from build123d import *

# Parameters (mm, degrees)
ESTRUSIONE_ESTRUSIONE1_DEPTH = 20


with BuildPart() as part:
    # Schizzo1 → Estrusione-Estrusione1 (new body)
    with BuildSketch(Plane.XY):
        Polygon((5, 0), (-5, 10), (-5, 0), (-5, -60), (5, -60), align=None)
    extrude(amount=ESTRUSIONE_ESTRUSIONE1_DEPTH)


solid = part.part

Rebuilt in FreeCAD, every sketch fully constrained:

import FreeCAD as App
import Part
import Sketcher
Q = App.Units.Quantity

doc = App.newDocument("Part")
body = doc.addObject("PartDesign::Body", "Body")

sketch1 = body.newObject("Sketcher::SketchObject", "Sketch")
sketch1.AttachmentSupport = (doc.getObject("XY_Plane"), [""])
sketch1.MapMode = "FlatFace"
sketch1.addGeometry(Part.LineSegment(App.Vector(5, 0, 0), App.Vector(-5, 10, 0)), False)
sketch1.addGeometry(Part.LineSegment(App.Vector(-5, 10, 0), App.Vector(-5, -60, 0)), False)
sketch1.addGeometry(Part.LineSegment(App.Vector(-5, -60, 0), App.Vector(5, -60, 0)), False)
sketch1.addGeometry(Part.LineSegment(App.Vector(5, -60, 0), App.Vector(5, 0, 0)), False)
sketch1.addConstraint(Sketcher.Constraint("Coincident", 0, 2, 1, 1))
sketch1.addConstraint(Sketcher.Constraint("Coincident", 1, 2, 2, 1))
sketch1.addConstraint(Sketcher.Constraint("Coincident", 2, 2, 3, 1))
sketch1.addConstraint(Sketcher.Constraint("Coincident", 3, 2, 0, 1))
sketch1.addConstraint(Sketcher.Constraint("Vertical", 1))
sketch1.addConstraint(Sketcher.Constraint("Horizontal", 2))
sketch1.addConstraint(Sketcher.Constraint("Vertical", 3))
sketch1.addConstraint(Sketcher.Constraint("PointOnObject", 3, 2, -1))
sketch1.addConstraint(Sketcher.Constraint("DistanceX", 2, 1, 2, 2, Q("10 mm")))
sketch1.addConstraint(Sketcher.Constraint("DistanceY", 1, 2, 1, 1, Q("70 mm")))
sketch1.addConstraint(Sketcher.Constraint("DistanceY", 3, 1, 3, 2, Q("60 mm")))
sketch1.addConstraint(Sketcher.Constraint("DistanceX", 0, 2, -1, 1, Q("5 mm")))
pad1 = body.newObject("PartDesign::Pad", "Pad")
pad1.Profile = sketch1
pad1.Length = 20

doc.recompute()
